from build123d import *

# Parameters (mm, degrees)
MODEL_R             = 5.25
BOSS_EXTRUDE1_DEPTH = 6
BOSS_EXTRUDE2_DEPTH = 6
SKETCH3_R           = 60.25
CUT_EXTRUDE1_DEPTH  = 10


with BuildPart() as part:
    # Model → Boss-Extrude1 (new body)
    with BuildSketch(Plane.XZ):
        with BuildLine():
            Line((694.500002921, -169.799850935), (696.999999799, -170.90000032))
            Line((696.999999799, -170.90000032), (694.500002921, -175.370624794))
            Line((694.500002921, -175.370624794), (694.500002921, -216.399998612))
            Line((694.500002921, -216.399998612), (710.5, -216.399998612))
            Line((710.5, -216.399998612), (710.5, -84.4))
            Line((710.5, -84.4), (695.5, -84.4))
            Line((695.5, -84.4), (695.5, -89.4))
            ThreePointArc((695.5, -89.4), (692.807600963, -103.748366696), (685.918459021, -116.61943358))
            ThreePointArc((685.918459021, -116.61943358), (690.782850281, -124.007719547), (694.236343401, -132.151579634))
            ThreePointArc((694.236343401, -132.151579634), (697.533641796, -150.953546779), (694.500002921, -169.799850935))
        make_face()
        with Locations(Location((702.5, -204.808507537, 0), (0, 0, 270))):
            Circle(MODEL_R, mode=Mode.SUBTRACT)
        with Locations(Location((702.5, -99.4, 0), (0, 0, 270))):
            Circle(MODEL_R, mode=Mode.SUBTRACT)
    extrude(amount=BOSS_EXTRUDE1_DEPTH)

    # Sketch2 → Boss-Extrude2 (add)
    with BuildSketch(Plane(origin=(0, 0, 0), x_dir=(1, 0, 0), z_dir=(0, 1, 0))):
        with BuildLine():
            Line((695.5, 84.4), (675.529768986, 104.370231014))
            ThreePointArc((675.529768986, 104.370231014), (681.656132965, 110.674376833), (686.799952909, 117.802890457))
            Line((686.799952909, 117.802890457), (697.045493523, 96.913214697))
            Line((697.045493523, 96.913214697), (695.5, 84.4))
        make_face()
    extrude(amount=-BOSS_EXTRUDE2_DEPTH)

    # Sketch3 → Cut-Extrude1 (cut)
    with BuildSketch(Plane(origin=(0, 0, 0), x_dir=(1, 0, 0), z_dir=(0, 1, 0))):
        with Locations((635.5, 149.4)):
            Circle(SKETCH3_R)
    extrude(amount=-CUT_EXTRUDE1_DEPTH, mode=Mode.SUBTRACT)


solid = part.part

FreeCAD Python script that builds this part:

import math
import FreeCAD as App
import Part
import Sketcher

V = App.Vector
Q = App.Units.Quantity

doc = App.newDocument("Part")
body = doc.addObject("PartDesign::Body", "Body")

# Sketch on XZ plane
sketch1 = body.newObject("Sketcher::SketchObject", "Sketch")
sketch1.AttachmentSupport = (doc.getObject("XZ_Plane"), [""])
sketch1.MapMode = "FlatFace"
sketch1.addGeometry(Part.LineSegment(V(694.5, -169.8, 0), V(697, -170.9, 0)), False)
sketch1.addGeometry(Part.LineSegment(V(697, -170.9, 0), V(694.5, -175.4, 0)), False)
sketch1.addGeometry(Part.LineSegment(V(694.5, -175.4, 0), V(694.5, -216.4, 0)), False)
sketch1.addGeometry(Part.LineSegment(V(694.5, -216.4, 0), V(710.5, -216.4, 0)), False)
sketch1.addGeometry(Part.LineSegment(V(710.5, -216.4, 0), V(710.5, -84.4, 0)), False)
sketch1.addGeometry(Part.LineSegment(V(710.5, -84.4, 0), V(695.5, -84.4, 0)), False)
sketch1.addGeometry(Part.LineSegment(V(695.5, -84.4, 0), V(695.5, -89.4, 0)), False)
sketch1.addGeometry(Part.ArcOfCircle(Part.Circle(V(647.6, -87.8, 0), V(0, 0, 1), 47.9), math.radians(-37), math.radians(-2)), False)
sketch1.addGeometry(Part.ArcOfCircle(Part.Circle(V(647.7, -147.1, 0), V(0, 0, 1), 48.9), math.radians(18), math.radians(39)), False)
sketch1.addGeometry(Part.ArcOfCircle(Part.Circle(V(640, -151.4, 0), V(0, 0, 1), 57.6), math.radians(-19), math.radians(19)), False)
sketch1.addGeometry(Part.Circle(V(702.5, -204.8, 0), V(0, 0, 1), 5.2), False)
sketch1.addGeometry(Part.Circle(V(702.5, -99.4, 0), V(0, 0, 1), 5.2), False)
sketch1.addConstraint(Sketcher.Constraint("Coincident", 0, 2, 1, 1))
sketch1.addConstraint(Sketcher.Constraint("Coincident", 1, 2, 2, 1))
sketch1.addConstraint(Sketcher.Constraint("Coincident", 2, 2, 3, 1))
sketch1.addConstraint(Sketcher.Constraint("Coincident", 3, 2, 4, 1))
sketch1.addConstraint(Sketcher.Constraint("Coincident", 4, 2, 5, 1))
sketch1.addConstraint(Sketcher.Constraint("Coincident", 5, 2, 6, 1))
sketch1.addConstraint(Sketcher.Constraint("Coincident", 6, 2, 7, 2))
sketch1.addConstraint(Sketcher.Constraint("Coincident", 7, 1, 8, 2))
sketch1.addConstraint(Sketcher.Constraint("Coincident", 8, 1, 9, 2))
sketch1.addConstraint(Sketcher.Constraint("Coincident", 9, 1, 0, 1))
sketch1.addConstraint(Sketcher.Constraint("Vertical", 2))
sketch1.addConstraint(Sketcher.Constraint("Horizontal", 3))
sketch1.addConstraint(Sketcher.Constraint("Vertical", 4))
sketch1.addConstraint(Sketcher.Constraint("Horizontal", 5))
sketch1.addConstraint(Sketcher.Constraint("Vertical", 6))
sketch1.addConstraint(Sketcher.Constraint("Equal", 10, 11))
sketch1.addConstraint(Sketcher.Constraint("Vertical", 10, 3, 11, 3))
sketch1.addConstraint(Sketcher.Constraint("Vertical", 2, 2, 9, 1))
sketch1.addConstraint(Sketcher.Constraint("Diameter", 10, 10.5))
sketch1.addConstraint(Sketcher.Constraint("DistanceX", 5, 2, 5, 1, 15.0))
sketch1.addConstraint(Sketcher.Constraint("DistanceY", 4, 1, 4, 2, 131.999999))
sketch1.addConstraint(Sketcher.Constraint("DistanceY", 6, 2, 6, 1, 5.0))
sketch1.addConstraint(Sketcher.Constraint("DistanceX", -1, 1, 0, 2, 697.0))
sketch1.addConstraint(Sketcher.Constraint("DistanceX", 10, 3, 3, 2, 8.0))
sketch1.addConstraint(Sketcher.Constraint("DistanceY", 11, 3, 4, 2, 15.0))
sketch1.addConstraint(Sketcher.Constraint("DistanceX", -1, 1, 10, 3, 702.5))
sketch1.addConstraint(Sketcher.Constraint("DistanceY", 11, 3, -1, 1, 99.4))
sketch1.addConstraint(Sketcher.Constraint("DistanceY", 0, 2, -1, 1, 170.9))
sketch1.addConstraint(Sketcher.Constraint("Radius", 7, 47.90217))
sketch1.addConstraint(Sketcher.Constraint("Radius", 9, 57.555018))
sketch1.addConstraint(Sketcher.Constraint("Radius", 8, 48.891102))
sketch1.addConstraint(Sketcher.Constraint("DistanceY", 10, 3, 9, 3, 53.4519))
sketch1.addConstraint(Sketcher.Constraint("DistanceX", 3, 1, 3, 2, 15.999997))
sketch1.addConstraint(Sketcher.Constraint("DistanceY", 2, 2, 2, 1, 41.029374))
sketch1.addConstraint(Sketcher.Constraint("DistanceY", 7, 3, -1, 1, 87.842939))
sketch1.addConstraint(Sketcher.Constraint("DistanceX", -1, 1, 7, 1, 685.918459))
sketch1.addConstraint(Sketcher.Constraint("DistanceY", 8, 1, -1, 1, 132.15158))
sketch1.addConstraint(Sketcher.Constraint("DistanceY", 9, 1, -1, 1, 169.799851))
sketch1.addConstraint(Sketcher.Constraint("DistanceX", 7, 3, 8, 3, 0.059822))
pad1 = body.newObject("PartDesign::Pad", "Pad")
pad1.Profile = sketch1
pad1.Length = 6

# Sketch on XZ plane
sketch2 = body.newObject("Sketcher::SketchObject", "Sketch001")
sketch2.AttachmentSupport = (doc.getObject("XZ_Plane"), [""])
sketch2.MapMode = "FlatFace"
sketch2.addGeometry(Part.LineSegment(V(676, -104, 0), V(696, -84, 0)), False)
sketch2.addGeometry(Part.LineSegment(V(696, -84, 0), V(697, -97, 0)), False)
sketch2.addGeometry(Part.LineSegment(V(697, -97, 0), V(687, -118, 0)), False)
sketch2.addGeometry(Part.ArcOfCircle(Part.Circle(V(635, -149, 0), V(0, 0, 1), 60), math.radians(31.63), math.radians(48.36)), False)
sketch2.addConstraint(Sketcher.Constraint("Coincident", 0, 2, 1, 1))
sketch2.addConstraint(Sketcher.Constraint("Coincident", 1, 2, 2, 1))
sketch2.addConstraint(Sketcher.Constraint("Coincident", 2, 2, 3, 1))
sketch2.addConstraint(Sketcher.Constraint("Coincident", 3, 2, 0, 1))
sketch2.addConstraint(Sketcher.Constraint("Angle", 0, Q("45 deg")))
sketch2.addConstraint(Sketcher.Constraint("Radius", 3, 60.25))
sketch2.addConstraint(Sketcher.Constraint("DistanceX", 3, 3, 0, 2, 60.0))
sketch2.addConstraint(Sketcher.Constraint("DistanceY", 3, 3, 0, 2, 65.0))
sketch2.addConstraint(Sketcher.Constraint("DistanceX", -1, 1, 3, 3, 635.5))
sketch2.addConstraint(Sketcher.Constraint("DistanceY", 3, 3, -1, 1, 149.4))
sketch2.addConstraint(Sketcher.Constraint("Distance", 2, 23.266922))
sketch2.addConstraint(Sketcher.Constraint("DistanceY", 2, 2, -1, 1, 117.80289))
sketch2.addConstraint(Sketcher.Constraint("DistanceX", 2, 2, 1, 2, 10.245541))
pad2 = body.newObject("PartDesign::Pad", "Pad001")
pad2.Profile = sketch2
pad2.Length = 6

# Sketch on XZ plane
sketch3 = body.newObject("Sketcher::SketchObject", "Sketch002")
sketch3.AttachmentSupport = (doc.getObject("XZ_Plane"), [""])
sketch3.MapMode = "FlatFace"
sketch3.addGeometry(Part.Circle(V(636, -149, 0), V(0, 0, 1), 60), False)
sketch3.addConstraint(Sketcher.Constraint("Diameter", 0, 120.5))
sketch3.addConstraint(Sketcher.Constraint("DistanceX", -1, 1, 0, 3, 635.5))
sketch3.addConstraint(Sketcher.Constraint("DistanceY", 0, 3, -1, 1, 149.4))
pocket1 = body.newObject("PartDesign::Pocket", "Pocket")
pocket1.Profile = sketch3
pocket1.Length = 10
pocket1.Reversed = True

doc.recompute()
